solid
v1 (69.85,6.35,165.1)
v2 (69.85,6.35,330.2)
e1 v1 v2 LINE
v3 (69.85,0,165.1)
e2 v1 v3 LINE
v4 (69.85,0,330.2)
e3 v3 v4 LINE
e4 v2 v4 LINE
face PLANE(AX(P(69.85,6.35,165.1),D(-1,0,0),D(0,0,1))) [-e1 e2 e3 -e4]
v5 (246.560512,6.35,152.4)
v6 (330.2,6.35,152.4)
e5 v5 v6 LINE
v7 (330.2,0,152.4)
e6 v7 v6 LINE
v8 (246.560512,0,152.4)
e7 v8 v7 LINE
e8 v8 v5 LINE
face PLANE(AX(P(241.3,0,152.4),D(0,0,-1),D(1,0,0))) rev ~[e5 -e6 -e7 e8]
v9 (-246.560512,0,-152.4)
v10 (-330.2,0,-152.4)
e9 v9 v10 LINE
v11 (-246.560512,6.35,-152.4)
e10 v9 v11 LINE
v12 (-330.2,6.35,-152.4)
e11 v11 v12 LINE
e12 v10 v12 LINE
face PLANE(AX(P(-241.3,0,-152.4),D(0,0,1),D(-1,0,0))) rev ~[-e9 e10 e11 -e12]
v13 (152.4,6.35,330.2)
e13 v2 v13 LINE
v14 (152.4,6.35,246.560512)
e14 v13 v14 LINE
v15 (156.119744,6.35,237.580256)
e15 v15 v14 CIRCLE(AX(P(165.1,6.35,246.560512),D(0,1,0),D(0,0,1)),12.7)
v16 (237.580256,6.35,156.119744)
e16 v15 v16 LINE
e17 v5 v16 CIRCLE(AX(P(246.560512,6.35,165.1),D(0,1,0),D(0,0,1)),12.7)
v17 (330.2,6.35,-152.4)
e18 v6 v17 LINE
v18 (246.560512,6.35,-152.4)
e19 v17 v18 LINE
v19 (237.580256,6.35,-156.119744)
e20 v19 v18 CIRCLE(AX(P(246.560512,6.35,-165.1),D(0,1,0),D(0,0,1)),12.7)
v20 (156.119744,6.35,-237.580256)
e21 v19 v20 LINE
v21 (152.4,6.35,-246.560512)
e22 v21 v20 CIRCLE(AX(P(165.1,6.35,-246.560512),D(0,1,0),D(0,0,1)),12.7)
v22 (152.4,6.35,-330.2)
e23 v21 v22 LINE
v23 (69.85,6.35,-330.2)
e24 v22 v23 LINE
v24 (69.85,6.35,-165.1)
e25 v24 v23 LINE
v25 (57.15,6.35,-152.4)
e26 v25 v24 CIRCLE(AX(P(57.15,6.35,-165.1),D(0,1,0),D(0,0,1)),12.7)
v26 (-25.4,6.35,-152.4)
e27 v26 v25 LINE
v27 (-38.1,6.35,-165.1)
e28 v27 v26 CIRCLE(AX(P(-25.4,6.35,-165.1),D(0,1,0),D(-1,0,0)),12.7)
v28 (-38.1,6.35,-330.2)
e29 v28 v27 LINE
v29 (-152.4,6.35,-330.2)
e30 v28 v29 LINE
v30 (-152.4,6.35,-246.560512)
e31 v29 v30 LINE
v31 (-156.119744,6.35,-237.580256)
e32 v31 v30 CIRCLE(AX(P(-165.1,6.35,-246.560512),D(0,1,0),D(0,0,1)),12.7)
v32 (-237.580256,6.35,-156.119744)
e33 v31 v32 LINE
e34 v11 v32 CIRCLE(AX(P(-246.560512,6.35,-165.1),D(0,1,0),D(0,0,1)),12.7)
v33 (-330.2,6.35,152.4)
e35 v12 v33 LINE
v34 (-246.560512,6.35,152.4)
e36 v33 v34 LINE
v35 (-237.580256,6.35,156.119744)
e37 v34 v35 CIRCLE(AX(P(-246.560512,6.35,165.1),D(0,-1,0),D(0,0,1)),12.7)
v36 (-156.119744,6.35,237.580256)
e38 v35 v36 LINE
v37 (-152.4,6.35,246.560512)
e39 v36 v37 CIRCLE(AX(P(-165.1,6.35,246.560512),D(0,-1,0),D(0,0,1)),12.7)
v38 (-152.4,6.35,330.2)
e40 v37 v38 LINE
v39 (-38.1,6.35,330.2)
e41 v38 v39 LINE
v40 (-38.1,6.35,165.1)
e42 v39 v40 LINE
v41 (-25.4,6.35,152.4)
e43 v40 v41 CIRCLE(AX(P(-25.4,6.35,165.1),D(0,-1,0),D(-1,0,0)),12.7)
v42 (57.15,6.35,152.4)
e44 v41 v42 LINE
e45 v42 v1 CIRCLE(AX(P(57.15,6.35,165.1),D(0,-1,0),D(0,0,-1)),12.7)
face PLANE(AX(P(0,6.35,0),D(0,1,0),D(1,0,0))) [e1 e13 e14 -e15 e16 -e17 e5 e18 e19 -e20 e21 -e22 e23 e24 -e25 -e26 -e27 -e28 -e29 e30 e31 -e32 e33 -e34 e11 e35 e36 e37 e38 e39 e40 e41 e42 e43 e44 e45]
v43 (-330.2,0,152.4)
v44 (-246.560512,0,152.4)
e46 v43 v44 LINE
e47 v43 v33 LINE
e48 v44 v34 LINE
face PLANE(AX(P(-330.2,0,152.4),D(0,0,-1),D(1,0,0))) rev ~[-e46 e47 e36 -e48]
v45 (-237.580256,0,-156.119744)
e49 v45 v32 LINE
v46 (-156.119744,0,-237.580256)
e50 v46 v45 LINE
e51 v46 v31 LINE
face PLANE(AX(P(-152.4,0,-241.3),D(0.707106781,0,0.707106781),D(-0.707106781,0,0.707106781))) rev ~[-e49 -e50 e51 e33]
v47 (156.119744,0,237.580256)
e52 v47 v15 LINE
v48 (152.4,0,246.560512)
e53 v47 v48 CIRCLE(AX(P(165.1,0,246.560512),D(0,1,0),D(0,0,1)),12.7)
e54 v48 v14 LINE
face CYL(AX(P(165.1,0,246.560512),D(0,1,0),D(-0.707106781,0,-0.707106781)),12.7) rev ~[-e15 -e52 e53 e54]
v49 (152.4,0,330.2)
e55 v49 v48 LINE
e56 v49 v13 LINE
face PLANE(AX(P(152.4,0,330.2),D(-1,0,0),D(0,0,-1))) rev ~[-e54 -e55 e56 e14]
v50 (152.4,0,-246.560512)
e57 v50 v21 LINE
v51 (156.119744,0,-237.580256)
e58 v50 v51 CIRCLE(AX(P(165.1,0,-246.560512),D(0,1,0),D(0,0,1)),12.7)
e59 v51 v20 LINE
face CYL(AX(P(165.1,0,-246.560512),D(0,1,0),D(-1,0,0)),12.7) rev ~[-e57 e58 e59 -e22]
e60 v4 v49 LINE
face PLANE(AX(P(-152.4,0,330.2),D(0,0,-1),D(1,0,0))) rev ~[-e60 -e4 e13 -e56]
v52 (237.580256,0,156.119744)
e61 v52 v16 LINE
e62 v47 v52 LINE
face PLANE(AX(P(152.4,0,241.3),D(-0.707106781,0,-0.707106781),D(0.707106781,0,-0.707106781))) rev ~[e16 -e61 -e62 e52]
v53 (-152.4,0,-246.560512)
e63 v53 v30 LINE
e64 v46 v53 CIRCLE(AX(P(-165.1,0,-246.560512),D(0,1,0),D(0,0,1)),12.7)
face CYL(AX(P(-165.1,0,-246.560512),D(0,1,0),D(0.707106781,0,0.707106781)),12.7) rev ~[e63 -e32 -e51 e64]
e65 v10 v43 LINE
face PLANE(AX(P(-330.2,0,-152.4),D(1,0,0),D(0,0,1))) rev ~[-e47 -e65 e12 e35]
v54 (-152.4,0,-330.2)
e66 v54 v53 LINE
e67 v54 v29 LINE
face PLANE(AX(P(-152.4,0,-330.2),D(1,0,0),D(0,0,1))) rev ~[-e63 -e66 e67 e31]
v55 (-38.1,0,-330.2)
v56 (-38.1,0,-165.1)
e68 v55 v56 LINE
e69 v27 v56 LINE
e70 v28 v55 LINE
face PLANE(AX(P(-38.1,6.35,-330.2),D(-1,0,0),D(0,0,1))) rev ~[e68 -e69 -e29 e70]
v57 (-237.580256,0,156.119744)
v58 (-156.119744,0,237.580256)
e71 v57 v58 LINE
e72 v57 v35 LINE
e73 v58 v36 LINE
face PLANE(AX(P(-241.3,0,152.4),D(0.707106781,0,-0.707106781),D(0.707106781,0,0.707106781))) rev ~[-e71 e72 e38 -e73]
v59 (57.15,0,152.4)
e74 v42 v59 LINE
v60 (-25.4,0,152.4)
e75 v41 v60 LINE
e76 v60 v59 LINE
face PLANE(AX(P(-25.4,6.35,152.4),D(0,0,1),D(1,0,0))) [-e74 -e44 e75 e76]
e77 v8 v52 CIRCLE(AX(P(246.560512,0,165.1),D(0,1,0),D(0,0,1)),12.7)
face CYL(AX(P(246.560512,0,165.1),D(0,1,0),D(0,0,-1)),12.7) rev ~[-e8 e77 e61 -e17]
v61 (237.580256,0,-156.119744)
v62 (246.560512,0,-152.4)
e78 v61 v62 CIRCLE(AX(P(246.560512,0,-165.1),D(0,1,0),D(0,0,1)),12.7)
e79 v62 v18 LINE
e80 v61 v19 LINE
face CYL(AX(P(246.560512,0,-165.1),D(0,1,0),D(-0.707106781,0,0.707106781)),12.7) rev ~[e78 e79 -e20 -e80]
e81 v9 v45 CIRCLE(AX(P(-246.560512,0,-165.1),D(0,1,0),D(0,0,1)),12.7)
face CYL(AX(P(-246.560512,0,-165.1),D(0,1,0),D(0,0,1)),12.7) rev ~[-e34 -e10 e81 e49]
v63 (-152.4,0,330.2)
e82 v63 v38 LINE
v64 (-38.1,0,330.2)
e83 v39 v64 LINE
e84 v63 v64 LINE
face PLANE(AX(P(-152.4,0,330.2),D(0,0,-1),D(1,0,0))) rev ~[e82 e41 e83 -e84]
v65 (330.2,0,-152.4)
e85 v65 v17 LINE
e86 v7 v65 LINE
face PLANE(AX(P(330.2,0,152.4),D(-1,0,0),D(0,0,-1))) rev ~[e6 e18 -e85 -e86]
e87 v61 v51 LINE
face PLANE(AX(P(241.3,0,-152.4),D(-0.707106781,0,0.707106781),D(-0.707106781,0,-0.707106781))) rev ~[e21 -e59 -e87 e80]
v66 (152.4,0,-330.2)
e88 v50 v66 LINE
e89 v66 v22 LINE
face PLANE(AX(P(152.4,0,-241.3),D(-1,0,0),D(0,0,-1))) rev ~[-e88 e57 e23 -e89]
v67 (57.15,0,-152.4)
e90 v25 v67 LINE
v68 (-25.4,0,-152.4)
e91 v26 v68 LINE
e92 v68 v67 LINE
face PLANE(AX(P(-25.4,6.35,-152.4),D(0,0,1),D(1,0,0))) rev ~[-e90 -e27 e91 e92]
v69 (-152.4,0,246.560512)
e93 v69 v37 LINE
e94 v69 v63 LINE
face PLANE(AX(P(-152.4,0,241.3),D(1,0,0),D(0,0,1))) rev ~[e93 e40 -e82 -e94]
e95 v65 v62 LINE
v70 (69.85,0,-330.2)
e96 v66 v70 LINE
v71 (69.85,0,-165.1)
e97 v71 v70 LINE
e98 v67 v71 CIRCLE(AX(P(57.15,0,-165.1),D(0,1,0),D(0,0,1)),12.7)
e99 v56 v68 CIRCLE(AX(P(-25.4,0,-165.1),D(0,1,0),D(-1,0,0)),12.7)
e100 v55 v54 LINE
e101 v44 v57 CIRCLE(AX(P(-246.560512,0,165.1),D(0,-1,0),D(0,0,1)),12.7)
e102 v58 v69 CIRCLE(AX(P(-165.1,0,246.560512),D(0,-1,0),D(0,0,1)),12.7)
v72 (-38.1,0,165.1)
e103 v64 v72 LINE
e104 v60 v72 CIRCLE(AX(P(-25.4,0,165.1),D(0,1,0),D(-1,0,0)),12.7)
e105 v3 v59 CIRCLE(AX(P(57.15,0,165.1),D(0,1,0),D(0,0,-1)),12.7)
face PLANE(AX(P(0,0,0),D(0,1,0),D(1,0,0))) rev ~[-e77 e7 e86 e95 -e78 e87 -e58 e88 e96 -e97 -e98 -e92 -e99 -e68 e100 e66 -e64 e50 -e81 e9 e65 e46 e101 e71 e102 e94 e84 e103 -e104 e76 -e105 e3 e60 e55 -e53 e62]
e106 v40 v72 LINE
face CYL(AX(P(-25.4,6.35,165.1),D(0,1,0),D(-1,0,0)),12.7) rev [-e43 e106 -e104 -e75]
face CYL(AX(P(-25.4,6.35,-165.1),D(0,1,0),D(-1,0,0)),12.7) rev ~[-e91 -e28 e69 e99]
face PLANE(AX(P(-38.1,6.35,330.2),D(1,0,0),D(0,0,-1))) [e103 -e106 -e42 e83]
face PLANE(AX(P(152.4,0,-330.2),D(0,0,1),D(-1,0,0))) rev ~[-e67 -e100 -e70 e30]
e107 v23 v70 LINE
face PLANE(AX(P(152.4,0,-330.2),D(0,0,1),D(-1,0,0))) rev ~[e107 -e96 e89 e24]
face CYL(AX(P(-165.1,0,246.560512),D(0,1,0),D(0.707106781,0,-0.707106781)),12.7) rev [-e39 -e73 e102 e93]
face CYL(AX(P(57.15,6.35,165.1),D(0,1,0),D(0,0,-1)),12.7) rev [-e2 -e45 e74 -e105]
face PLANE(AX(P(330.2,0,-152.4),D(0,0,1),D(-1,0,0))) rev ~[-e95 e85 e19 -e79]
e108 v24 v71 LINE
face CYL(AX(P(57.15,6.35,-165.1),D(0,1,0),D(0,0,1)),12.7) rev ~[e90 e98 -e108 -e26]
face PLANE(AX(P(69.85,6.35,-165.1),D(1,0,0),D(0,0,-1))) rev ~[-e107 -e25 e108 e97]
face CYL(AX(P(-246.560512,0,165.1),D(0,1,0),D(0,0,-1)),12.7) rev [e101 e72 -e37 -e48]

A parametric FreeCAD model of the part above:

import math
import FreeCAD as App
import Part
import Sketcher
from FreeCAD import Vector
Q = App.Units.Quantity


def edges_at(feature, points):
    """Names of the edges that pass closest to the given points."""
    edges = feature.Shape.Edges
    near = lambda p: min(range(len(edges)), key=lambda i: edges[i].distToShape(Part.Vertex(*p))[0])
    return sorted({f"Edge{near(p) + 1}" for p in points})


def add_polygon(sketch, points):
    """Adds a closed chain of lines whose ends are joined by coincident constraints."""
    first, n = sketch.GeometryCount, len(points)
    for a, b in zip(points, points[1:] + points[:1]):
        sketch.addGeometry(Part.LineSegment(App.Vector(*a, 0), App.Vector(*b, 0)), False)
    for i in range(n):
        sketch.addConstraint(Sketcher.Constraint("Coincident", first + i, 2, first + (i + 1) % n, 1))

doc = App.newDocument("Part")
body = doc.addObject("PartDesign::Body", "Body")

sketch1 = body.newObject("Sketcher::SketchObject", "Sketch")
sketch1.AttachmentSupport = (doc.getObject("XZ_Plane"), [""])
sketch1.MapMode = "FlatFace"
add_polygon(sketch1, [(-330.2, -152.4), (-330.2, 152.4), (-241.3, 152.4), (-152.4, 241.3), (-152.4, 330.2), (152.4, 330.2), (152.4, 241.3), (241.3, 152.4), (330.2, 152.4), (330.2, -152.4), (241.3, -152.4), (152.4, -241.3), (152.4, -330.2), (-152.4, -330.2), (-152.4, -241.3), (-241.3, -152.4)])
sketch1.addConstraint([
    Sketcher.Constraint("Vertical", 0),
    Sketcher.Constraint("Horizontal", 1),
    Sketcher.Constraint("Vertical", 3),
    Sketcher.Constraint("Horizontal", 4),
    Sketcher.Constraint("Vertical", 5),
    Sketcher.Constraint("Horizontal", 7),
    Sketcher.Constraint("Vertical", 8),
    Sketcher.Constraint("Horizontal", 9),
    Sketcher.Constraint("Vertical", 11),
    Sketcher.Constraint("Horizontal", 12),
    Sketcher.Constraint("Vertical", 13),
    Sketcher.Constraint("Horizontal", 15),
    Sketcher.Constraint("Symmetric", 0, 2, 8, 2, -1, 1),
    Sketcher.Constraint("Symmetric", 2, 2, 10, 2, -1, 1),
    Sketcher.Constraint("Symmetric", 4, 2, 12, 2, -1, 1),
    Sketcher.Constraint("Symmetric", 6, 2, 14, 2, -1, 1),
    Sketcher.Constraint("Symmetric", 2, 2, 5, 2, -2),
    Sketcher.Constraint("Symmetric", 1, 2, 6, 2, -2),
    Sketcher.Constraint("Perpendicular", 2, 6),
    Sketcher.Constraint("Perpendicular", 6, 10),
    Sketcher.Constraint("Perpendicular", 10, 14),
    Sketcher.Constraint("Equal", 12, 0),
    Sketcher.Constraint("Equal", 15, 3),
    Sketcher.Constraint("DistanceX", 4, 1, 4, 2, Q("12 in")),
    Sketcher.Constraint("DistanceX", 1, 1, 1, 2, Q("3.5 in")),
    Sketcher.Constraint("DistanceX", 0, 2, -1, 1, Q("13 in")),
])
pad1 = body.newObject("PartDesign::Pad", "Pad")
pad1.Profile = sketch1
pad1.Length = Q("0.25 in")
pad1.Reversed = True

sketch2 = body.newObject("Sketcher::SketchObject", "Sketch001")
sketch2.AttachmentSupport = (doc.getObject("XZ_Plane"), [""])
sketch2.MapMode = "FlatFace"
sketch2.AttachmentOffset = App.Placement(Vector(0, 0, -0.25 * 25.4), App.Rotation())
sketch2.addGeometry([
    Part.LineSegment(Vector(69.85, -330.2, 0), Vector(-38.1, -330.2, 0)),
    Part.LineSegment(Vector(-38.1, -330.2, 0), Vector(-38.1, -165.1, 0)),
    Part.ArcOfCircle(Part.Circle(Vector(-25.4, -165.1, 0), Vector(0, 0, 1), 12.7), math.radians(90), math.radians(180)),
    Part.LineSegment(Vector(-25.4, -152.4, 0), Vector(57.15, -152.4, 0)),
    Part.ArcOfCircle(Part.Circle(Vector(57.15, -165.1, 0), Vector(0, 0, 1), 12.7), math.radians(0), math.radians(90)),
    Part.LineSegment(Vector(69.85, -165.1, 0), Vector(69.85, -330.2, 0)),
    Part.LineSegment(Vector(-38.1, 330.2, 0), Vector(69.85, 330.2, 0)),
    Part.LineSegment(Vector(69.85, 330.2, 0), Vector(69.85, 165.1, 0)),
    Part.ArcOfCircle(Part.Circle(Vector(57.15, 165.1, 0), Vector(0, 0, 1), 12.7), math.radians(-90), math.radians(0)),
    Part.LineSegment(Vector(57.15, 152.4, 0), Vector(-25.4, 152.4, 0)),
    Part.ArcOfCircle(Part.Circle(Vector(-25.4, 165.1, 0), Vector(0, 0, 1), 12.7), math.radians(180), math.radians(270)),
    Part.LineSegment(Vector(-38.1, 165.1, 0), Vector(-38.1, 330.2, 0)),
], False)
sketch2.addConstraint([
    Sketcher.Constraint("Coincident", 0, 2, 1, 1),
    Sketcher.Constraint("Tangent", 1, 2, 2, 2),
    Sketcher.Constraint("Tangent", 2, 1, 3, 1),
    Sketcher.Constraint("Tangent", 3, 2, 4, 2),
    Sketcher.Constraint("Tangent", 4, 1, 5, 1),
    Sketcher.Constraint("Coincident", 5, 2, 0, 1),
    Sketcher.Constraint("Coincident", 6, 2, 7, 1),
    Sketcher.Constraint("Tangent", 7, 2, 8, 2),
    Sketcher.Constraint("Tangent", 8, 1, 9, 1),
    Sketcher.Constraint("Tangent", 9, 2, 10, 2),
    Sketcher.Constraint("Tangent", 10, 1, 11, 1),
    Sketcher.Constraint("Coincident", 11, 2, 6, 1),
    Sketcher.Constraint("Horizontal", 0),
    Sketcher.Constraint("Vertical", 1),
    Sketcher.Constraint("Horizontal", 3),
    Sketcher.Constraint("Vertical", 5),
    Sketcher.Constraint("Horizontal", 6),
    Sketcher.Constraint("Vertical", 7),
    Sketcher.Constraint("Horizontal", 9),
    Sketcher.Constraint("Vertical", 11),
    Sketcher.Constraint("Equal", 2, 4),
    Sketcher.Constraint("Equal", 4, 8),
    Sketcher.Constraint("Equal", 8, 10),
    Sketcher.Constraint("Symmetric", 4, 3, 8, 3, -1),
    Sketcher.Constraint("Symmetric", 0, 2, 11, 2, -1),
    Sketcher.Constraint("Radius", 2, Q("0.5 in")),
    Sketcher.Constraint("DistanceY", 1, 1, 1, 2, Q("6.5 in")),
    Sketcher.Constraint("DistanceX", 2, 3, -1, 1, Q("1 in")),
    Sketcher.Constraint("DistanceY", 0, 2, -1, 1, Q("13 in")),
    Sketcher.Constraint("DistanceX", 0, 2, 0, 1, Q("4.25 in")),
])
pocket1 = body.newObject("PartDesign::Pocket", "Pocket")
pocket1.Profile = sketch2
pocket1.Type = "ThroughAll"
pocket1.Reversed = True
doc.recompute()

fillet = body.newObject("PartDesign::Fillet", "Fillet")
fillet.Base = (pocket1, edges_at(pocket1, [
    (152.4, 3.175, 241.3),
    (-152.4, 3.175, 241.3),
    (-241.3, 3.175, 152.4),
    (-241.3, 3.175, -152.4),
    (-152.4, 3.175, -241.3),
    (152.4, 3.175, -241.3),
    (241.3, 3.175, -152.4),
    (241.3, 3.175, 152.4),
]))
fillet.Radius = Q("0.5 in")

doc.recompute()
